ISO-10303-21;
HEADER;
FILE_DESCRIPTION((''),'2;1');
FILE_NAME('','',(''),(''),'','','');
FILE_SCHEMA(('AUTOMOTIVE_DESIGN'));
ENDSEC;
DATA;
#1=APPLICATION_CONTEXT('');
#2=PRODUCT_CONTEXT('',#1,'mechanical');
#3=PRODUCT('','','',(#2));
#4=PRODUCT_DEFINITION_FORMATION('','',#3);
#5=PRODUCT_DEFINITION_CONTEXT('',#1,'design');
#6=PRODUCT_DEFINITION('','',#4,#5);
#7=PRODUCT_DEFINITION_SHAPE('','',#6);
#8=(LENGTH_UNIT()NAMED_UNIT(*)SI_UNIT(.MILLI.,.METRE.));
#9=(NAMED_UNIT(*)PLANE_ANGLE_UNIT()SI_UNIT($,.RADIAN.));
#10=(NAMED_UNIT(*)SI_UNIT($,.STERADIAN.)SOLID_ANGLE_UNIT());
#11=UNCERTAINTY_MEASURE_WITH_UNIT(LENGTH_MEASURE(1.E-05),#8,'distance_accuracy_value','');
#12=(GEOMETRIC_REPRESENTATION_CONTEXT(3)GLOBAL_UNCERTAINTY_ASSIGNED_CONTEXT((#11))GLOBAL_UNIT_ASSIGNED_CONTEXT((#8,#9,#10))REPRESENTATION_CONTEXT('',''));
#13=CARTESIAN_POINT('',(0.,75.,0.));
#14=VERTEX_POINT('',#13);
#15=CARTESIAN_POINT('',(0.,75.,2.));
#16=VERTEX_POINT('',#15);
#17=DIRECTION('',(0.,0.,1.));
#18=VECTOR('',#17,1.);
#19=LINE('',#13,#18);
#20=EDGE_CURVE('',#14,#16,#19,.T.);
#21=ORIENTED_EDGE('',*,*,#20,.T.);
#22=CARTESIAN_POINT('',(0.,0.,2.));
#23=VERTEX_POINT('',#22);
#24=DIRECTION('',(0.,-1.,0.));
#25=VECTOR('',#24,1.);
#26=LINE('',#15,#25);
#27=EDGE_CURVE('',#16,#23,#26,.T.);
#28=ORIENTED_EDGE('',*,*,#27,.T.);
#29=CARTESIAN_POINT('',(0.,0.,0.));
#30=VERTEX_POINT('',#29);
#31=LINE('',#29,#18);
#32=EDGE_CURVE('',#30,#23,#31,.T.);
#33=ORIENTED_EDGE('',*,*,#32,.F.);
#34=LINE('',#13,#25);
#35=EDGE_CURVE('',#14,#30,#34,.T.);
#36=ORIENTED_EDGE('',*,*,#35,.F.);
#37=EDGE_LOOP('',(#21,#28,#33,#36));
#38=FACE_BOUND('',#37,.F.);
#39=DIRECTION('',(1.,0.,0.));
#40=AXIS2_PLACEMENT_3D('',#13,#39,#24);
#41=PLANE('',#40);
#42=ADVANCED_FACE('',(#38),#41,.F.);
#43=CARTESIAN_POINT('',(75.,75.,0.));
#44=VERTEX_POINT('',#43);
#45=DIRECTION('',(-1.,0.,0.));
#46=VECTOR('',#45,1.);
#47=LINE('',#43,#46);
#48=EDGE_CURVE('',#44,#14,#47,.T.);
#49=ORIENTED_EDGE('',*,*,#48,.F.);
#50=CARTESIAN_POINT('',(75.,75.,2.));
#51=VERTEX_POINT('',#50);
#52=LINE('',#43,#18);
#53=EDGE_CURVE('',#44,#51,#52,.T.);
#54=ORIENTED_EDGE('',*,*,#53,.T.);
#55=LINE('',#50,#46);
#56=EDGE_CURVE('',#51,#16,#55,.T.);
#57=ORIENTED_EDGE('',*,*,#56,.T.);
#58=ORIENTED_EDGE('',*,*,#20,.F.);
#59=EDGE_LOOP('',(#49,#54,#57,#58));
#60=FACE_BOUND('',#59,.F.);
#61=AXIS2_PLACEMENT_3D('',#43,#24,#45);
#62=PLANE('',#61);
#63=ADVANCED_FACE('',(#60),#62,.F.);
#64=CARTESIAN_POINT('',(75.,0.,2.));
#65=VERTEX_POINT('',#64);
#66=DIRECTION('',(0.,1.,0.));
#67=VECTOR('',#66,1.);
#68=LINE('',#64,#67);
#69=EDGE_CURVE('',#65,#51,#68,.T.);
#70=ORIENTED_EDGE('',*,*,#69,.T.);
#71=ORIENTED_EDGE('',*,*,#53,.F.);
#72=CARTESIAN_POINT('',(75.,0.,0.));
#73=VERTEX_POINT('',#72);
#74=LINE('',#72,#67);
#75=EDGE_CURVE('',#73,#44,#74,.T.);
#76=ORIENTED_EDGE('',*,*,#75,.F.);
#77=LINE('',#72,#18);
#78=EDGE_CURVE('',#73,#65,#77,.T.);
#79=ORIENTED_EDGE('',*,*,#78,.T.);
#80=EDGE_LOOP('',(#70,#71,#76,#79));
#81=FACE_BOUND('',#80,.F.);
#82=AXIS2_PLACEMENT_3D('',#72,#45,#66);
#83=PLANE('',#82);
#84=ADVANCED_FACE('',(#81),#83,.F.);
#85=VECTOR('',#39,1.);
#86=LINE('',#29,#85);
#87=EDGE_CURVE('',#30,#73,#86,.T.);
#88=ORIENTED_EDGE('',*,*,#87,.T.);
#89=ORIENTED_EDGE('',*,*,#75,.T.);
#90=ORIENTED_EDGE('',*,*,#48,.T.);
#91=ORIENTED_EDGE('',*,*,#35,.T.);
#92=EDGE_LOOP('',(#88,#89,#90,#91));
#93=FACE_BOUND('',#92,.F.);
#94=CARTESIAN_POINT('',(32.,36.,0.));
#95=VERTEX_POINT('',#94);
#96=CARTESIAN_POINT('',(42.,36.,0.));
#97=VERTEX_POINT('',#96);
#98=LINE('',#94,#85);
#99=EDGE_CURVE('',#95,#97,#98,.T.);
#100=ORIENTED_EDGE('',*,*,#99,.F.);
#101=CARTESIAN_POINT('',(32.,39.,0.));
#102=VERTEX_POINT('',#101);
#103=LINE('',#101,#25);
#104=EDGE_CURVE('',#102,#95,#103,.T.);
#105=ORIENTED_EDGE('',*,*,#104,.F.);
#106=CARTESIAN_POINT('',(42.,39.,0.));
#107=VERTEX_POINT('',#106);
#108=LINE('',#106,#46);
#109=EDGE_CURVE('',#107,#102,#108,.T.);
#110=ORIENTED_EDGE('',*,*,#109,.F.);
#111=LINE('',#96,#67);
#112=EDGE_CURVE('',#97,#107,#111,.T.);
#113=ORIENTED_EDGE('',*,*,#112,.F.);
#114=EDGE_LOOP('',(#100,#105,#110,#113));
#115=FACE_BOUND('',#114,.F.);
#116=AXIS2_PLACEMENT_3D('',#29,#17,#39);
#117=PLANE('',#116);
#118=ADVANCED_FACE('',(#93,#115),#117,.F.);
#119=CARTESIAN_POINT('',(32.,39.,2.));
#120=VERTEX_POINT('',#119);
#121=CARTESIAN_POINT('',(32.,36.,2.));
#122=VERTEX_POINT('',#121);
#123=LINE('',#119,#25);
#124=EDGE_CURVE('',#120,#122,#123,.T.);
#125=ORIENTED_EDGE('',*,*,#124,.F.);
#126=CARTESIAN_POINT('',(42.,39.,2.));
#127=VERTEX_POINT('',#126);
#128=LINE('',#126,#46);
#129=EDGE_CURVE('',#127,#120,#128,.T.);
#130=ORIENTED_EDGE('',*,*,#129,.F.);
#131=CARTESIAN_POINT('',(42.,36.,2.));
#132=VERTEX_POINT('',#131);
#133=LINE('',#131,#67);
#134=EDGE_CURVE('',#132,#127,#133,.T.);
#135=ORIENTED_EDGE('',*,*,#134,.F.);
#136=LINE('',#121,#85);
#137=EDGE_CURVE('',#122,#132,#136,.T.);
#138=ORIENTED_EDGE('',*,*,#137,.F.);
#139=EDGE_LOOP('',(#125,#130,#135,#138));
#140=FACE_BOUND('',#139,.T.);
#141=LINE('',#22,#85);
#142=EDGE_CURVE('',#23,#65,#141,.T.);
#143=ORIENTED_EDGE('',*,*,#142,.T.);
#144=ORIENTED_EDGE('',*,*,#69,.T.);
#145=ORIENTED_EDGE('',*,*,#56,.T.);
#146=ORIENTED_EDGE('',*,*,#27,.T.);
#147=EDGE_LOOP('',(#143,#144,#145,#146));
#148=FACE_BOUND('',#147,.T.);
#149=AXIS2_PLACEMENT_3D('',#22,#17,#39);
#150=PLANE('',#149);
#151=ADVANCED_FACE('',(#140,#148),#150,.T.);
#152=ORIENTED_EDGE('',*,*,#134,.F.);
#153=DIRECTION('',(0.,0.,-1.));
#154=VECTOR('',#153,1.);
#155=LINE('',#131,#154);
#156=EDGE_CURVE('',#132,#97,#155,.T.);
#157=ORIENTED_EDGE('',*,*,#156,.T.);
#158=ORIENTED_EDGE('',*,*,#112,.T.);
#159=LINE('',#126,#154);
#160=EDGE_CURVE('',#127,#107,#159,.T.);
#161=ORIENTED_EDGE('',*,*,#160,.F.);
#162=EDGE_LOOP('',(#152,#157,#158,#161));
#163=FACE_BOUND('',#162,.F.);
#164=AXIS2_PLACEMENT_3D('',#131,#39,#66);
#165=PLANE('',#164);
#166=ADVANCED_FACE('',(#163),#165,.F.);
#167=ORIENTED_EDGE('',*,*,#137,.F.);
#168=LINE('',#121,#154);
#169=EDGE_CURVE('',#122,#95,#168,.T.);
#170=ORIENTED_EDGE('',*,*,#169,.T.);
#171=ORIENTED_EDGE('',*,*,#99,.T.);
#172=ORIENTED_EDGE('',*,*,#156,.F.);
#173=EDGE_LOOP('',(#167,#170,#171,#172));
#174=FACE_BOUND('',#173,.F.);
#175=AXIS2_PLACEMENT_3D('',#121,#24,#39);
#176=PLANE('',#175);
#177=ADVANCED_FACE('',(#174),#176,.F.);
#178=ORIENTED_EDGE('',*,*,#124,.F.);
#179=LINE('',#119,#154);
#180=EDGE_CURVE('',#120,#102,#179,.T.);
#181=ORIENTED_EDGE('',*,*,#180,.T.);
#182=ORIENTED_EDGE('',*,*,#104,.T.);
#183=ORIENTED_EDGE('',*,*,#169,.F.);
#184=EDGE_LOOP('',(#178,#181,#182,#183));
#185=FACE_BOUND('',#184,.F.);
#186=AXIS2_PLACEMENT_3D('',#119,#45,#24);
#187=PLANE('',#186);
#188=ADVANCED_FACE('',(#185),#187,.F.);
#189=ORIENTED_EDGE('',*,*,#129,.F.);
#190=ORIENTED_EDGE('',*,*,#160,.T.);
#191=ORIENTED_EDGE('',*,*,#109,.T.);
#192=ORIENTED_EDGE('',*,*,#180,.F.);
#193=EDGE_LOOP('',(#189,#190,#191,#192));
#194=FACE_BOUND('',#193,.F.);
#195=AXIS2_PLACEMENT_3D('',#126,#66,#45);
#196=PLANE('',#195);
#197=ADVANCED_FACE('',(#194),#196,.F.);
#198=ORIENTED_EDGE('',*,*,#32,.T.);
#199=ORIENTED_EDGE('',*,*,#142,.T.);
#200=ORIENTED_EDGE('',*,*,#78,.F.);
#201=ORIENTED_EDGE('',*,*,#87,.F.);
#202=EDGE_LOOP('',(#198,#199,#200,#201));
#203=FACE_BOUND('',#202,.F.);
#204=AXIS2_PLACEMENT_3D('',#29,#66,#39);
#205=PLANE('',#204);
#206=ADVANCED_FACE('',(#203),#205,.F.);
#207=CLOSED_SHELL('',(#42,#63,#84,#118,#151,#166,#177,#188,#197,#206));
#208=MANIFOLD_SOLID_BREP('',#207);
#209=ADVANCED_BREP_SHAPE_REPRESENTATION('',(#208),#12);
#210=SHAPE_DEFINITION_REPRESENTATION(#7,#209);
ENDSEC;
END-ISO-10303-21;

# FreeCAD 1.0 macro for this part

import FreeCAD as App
import Part
import Sketcher

doc = App.newDocument("Part")
body = doc.addObject("PartDesign::Body", "Body")

# Sketch on XY plane
sketch1 = doc.addObject("Sketcher::SketchObject", "Sketch")
body.addObject(sketch1)
sketch1.AttachmentSupport = (doc.XY_Plane, [""])
sketch1.MapMode = "FlatFace"
sketch1.addGeometry([
    Part.LineSegment(App.Vector(0, 75, 0), App.Vector(0, 0, 0)),
    Part.LineSegment(App.Vector(0, 0, 0), App.Vector(75, 0, 0)),
    Part.LineSegment(App.Vector(75, 0, 0), App.Vector(75, 75, 0)),
    Part.LineSegment(App.Vector(75, 75, 0), App.Vector(0, 75, 0)),
], False)
sketch1.addConstraint([
    Sketcher.Constraint("Coincident", 0, 2, 1, 1),
    Sketcher.Constraint("Coincident", 1, 2, 2, 1),
    Sketcher.Constraint("Coincident", 2, 2, 3, 1),
    Sketcher.Constraint("Coincident", 3, 2, 0, 1),
    Sketcher.Constraint("Vertical", 0),
    Sketcher.Constraint("Horizontal", 1),
    Sketcher.Constraint("Vertical", 2),
    Sketcher.Constraint("Horizontal", 3),
    Sketcher.Constraint("Coincident", 0, 2, -1, 1),
    Sketcher.Constraint("Equal", 3, 0),
    Sketcher.Constraint("DistanceX", 1, 1, 1, 2, 75.0),
])
pad1 = doc.addObject("PartDesign::Pad", "Pad")
body.addObject(pad1)
pad1.Profile = sketch1
pad1.Length = 2

# Sketch on XY plane
sketch2 = doc.addObject("Sketcher::SketchObject", "Sketch001")
body.addObject(sketch2)
sketch2.AttachmentSupport = (doc.XY_Plane, [""])
sketch2.MapMode = "FlatFace"
sketch2.AttachmentOffset = App.Placement(App.Vector(0, 0, 2), App.Rotation())
sketch2.addGeometry([
    Part.LineSegment(App.Vector(32, 39, 0), App.Vector(32, 36, 0)),
    Part.LineSegment(App.Vector(32, 36, 0), App.Vector(42, 36, 0)),
    Part.LineSegment(App.Vector(42, 36, 0), App.Vector(42, 39, 0)),
    Part.LineSegment(App.Vector(42, 39, 0), App.Vector(32, 39, 0)),
], False)
sketch2.addConstraint([
    Sketcher.Constraint("Coincident", 0, 2, 1, 1),
    Sketcher.Constraint("Coincident", 1, 2, 2, 1),
    Sketcher.Constraint("Coincident", 2, 2, 3, 1),
    Sketcher.Constraint("Coincident", 3, 2, 0, 1),
    Sketcher.Constraint("Vertical", 0),
    Sketcher.Constraint("Horizontal", 1),
    Sketcher.Constraint("Vertical", 2),
    Sketcher.Constraint("Horizontal", 3),
    Sketcher.Constraint("DistanceX", 1, 1, 1, 2, 10.0),
    Sketcher.Constraint("DistanceY", 0, 2, 0, 1, 3.0),
    Sketcher.Constraint("DistanceX", -1, 1, 0, 2, 32.0),
    Sketcher.Constraint("DistanceY", -1, 1, 0, 2, 36.0),
])
pocket1 = doc.addObject("PartDesign::Pocket", "Pocket")
body.addObject(pocket1)
pocket1.Profile = sketch2
pocket1.Length = 2

doc.recompute()
